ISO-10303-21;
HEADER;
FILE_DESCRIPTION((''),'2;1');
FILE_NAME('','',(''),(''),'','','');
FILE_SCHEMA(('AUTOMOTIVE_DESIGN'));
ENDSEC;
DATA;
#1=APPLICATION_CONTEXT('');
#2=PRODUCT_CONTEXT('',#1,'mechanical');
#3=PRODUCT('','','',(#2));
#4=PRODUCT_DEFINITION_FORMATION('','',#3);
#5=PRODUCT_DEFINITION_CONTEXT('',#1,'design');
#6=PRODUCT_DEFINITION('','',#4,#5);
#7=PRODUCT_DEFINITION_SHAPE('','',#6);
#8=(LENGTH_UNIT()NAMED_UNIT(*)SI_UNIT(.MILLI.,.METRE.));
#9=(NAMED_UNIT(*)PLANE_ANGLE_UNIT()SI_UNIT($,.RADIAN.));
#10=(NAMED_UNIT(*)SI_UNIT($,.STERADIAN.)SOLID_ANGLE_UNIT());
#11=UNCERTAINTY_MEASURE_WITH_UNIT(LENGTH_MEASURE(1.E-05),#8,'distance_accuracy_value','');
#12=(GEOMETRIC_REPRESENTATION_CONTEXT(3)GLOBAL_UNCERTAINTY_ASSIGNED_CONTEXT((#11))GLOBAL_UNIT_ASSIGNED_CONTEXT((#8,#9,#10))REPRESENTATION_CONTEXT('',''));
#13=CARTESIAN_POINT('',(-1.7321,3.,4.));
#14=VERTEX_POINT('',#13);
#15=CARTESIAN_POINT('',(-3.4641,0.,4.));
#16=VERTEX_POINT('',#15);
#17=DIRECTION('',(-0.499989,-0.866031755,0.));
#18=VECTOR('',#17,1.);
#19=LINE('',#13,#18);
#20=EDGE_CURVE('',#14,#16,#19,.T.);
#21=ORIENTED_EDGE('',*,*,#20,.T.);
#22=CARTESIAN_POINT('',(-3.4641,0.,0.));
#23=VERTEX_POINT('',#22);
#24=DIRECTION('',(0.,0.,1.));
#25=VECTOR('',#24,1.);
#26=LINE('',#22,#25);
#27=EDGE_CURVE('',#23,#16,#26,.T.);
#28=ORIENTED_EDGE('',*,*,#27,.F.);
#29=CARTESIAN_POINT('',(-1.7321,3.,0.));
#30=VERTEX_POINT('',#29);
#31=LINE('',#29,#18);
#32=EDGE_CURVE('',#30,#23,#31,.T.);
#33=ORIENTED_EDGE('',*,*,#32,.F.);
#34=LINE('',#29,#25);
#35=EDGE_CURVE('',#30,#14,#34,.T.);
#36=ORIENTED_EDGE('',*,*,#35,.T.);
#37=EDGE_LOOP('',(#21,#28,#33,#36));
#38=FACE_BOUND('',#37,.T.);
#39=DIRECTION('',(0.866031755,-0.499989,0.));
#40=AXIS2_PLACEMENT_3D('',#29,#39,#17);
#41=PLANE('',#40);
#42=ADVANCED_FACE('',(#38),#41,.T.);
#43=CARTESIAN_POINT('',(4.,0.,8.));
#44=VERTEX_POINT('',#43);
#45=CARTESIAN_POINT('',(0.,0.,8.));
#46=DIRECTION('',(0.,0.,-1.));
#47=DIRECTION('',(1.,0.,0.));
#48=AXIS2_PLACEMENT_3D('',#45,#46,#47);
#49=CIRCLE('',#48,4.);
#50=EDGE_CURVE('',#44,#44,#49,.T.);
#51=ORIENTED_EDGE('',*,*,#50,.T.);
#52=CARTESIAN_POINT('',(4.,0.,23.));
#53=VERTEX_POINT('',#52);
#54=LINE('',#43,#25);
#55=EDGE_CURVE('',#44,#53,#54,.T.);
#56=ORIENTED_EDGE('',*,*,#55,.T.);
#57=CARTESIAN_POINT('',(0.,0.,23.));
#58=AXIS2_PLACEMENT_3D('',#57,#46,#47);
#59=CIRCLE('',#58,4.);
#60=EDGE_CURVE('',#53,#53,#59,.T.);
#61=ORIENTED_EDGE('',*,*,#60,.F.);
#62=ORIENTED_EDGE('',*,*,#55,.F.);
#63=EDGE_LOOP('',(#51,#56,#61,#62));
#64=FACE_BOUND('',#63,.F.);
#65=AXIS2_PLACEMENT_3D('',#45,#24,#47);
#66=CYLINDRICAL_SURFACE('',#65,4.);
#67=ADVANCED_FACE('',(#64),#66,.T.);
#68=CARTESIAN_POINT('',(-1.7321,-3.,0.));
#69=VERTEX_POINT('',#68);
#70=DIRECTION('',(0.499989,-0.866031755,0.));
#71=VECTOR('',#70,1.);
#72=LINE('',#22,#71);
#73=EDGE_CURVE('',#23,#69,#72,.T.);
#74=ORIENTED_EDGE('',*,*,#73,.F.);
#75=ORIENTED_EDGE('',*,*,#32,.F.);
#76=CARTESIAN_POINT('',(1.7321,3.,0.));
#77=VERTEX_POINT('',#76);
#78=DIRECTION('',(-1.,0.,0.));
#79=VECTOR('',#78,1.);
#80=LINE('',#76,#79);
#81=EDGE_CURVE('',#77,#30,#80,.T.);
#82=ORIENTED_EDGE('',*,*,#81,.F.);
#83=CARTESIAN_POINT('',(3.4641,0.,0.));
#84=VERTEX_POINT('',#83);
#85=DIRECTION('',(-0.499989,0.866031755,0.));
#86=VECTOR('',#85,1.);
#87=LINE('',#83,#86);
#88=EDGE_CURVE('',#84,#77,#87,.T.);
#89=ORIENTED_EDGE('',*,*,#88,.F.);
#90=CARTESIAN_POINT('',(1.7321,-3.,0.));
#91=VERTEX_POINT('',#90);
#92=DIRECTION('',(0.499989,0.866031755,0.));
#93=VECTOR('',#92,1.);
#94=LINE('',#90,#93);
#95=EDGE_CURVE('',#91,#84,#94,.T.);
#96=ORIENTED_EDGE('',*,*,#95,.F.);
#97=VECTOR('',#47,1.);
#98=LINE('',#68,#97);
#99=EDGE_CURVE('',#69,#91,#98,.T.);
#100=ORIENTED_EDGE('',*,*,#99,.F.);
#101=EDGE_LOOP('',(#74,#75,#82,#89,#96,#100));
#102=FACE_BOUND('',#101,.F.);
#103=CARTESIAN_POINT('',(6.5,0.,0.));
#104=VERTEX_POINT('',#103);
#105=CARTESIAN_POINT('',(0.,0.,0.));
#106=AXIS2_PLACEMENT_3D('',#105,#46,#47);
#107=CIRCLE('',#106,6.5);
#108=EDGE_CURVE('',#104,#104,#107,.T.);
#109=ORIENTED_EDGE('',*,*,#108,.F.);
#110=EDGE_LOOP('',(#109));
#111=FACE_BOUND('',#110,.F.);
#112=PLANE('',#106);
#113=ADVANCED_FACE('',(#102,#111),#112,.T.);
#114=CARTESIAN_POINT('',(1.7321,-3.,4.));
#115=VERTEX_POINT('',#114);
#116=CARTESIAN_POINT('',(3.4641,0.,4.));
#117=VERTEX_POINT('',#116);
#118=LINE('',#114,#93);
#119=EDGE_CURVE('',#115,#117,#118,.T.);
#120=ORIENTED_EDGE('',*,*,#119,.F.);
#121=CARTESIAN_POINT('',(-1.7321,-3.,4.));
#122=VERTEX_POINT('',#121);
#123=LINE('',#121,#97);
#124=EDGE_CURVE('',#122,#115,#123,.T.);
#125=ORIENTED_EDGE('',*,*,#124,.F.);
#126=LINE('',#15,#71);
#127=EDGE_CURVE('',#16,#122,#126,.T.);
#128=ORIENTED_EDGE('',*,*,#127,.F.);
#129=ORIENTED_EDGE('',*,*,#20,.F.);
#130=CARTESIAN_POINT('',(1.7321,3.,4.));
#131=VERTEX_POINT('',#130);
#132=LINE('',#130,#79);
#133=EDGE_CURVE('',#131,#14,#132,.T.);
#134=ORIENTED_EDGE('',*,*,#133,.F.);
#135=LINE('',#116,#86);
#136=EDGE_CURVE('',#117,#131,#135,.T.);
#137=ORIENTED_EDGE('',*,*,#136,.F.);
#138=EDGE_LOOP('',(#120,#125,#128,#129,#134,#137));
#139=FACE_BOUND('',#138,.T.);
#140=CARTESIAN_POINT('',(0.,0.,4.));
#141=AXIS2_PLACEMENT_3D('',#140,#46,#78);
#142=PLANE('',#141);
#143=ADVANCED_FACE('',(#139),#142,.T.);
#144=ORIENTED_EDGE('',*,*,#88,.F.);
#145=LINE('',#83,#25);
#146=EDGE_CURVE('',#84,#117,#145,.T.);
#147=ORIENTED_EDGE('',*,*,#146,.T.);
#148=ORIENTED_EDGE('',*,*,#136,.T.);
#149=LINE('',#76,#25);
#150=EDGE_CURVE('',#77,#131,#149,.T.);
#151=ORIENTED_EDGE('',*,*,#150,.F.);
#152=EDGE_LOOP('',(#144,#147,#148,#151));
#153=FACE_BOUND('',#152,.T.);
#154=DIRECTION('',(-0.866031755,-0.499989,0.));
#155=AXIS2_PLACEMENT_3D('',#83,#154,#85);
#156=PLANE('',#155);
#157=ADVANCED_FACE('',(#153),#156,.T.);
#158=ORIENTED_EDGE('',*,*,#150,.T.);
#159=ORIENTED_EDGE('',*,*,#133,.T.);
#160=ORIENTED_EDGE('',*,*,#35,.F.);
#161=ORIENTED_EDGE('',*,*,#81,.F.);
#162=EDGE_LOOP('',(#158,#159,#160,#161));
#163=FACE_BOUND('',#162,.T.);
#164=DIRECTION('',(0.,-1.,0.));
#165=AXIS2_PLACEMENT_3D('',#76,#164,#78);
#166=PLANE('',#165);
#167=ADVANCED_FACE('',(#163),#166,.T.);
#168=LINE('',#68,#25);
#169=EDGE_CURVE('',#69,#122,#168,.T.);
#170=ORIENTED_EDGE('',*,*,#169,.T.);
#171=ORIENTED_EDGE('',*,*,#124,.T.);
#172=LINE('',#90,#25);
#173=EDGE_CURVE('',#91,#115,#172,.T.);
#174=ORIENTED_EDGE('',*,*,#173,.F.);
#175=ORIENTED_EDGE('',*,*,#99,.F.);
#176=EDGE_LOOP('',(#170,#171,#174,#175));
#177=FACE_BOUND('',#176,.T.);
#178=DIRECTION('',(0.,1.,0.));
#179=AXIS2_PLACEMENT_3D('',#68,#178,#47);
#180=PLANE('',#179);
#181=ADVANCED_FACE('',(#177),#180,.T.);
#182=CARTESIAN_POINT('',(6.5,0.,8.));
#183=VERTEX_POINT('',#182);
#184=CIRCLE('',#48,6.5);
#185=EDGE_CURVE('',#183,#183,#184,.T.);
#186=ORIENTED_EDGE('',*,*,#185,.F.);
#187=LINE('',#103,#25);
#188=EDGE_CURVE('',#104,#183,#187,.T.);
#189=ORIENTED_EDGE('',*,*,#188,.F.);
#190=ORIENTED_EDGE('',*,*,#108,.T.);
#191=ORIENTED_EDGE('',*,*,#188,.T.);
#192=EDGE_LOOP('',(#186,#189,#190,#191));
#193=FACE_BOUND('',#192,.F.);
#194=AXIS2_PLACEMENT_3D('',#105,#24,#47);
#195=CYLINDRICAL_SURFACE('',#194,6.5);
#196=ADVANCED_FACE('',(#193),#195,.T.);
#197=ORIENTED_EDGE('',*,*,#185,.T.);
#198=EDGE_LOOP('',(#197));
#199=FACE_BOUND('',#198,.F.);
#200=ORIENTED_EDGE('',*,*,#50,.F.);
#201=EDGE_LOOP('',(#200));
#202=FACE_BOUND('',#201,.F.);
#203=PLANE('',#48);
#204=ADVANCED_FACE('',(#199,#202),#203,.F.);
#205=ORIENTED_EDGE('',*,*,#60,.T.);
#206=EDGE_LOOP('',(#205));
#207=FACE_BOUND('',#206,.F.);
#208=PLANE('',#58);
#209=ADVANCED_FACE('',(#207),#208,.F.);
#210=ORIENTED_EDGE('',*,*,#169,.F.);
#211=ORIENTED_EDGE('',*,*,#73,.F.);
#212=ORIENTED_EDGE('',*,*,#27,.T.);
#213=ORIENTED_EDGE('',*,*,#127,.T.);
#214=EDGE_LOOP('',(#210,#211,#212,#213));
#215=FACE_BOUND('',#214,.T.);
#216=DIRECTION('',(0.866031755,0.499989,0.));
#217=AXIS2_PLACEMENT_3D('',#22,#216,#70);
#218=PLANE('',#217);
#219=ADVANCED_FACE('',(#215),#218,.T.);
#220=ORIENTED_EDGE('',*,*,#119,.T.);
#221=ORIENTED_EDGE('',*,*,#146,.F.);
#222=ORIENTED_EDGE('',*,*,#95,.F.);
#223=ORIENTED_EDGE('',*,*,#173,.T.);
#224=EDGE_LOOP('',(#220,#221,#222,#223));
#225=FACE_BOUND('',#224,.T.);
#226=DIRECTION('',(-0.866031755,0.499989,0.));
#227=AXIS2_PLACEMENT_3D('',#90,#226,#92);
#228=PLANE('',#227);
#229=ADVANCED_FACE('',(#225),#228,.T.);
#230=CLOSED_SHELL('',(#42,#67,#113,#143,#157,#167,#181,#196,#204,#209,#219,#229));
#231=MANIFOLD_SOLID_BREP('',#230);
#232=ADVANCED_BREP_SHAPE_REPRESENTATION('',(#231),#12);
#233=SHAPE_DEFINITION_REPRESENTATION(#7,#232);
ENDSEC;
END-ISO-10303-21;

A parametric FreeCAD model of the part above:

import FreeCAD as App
import Part
import Sketcher
Q = App.Units.Quantity


def add_polygon(sketch, points):
    """Adds a closed chain of lines whose ends are joined by coincident constraints."""
    first, n = sketch.GeometryCount, len(points)
    for a, b in zip(points, points[1:] + points[:1]):
        sketch.addGeometry(Part.LineSegment(App.Vector(*a, 0), App.Vector(*b, 0)), False)
    for i in range(n):
        sketch.addConstraint(Sketcher.Constraint("Coincident", first + i, 2, first + (i + 1) % n, 1))

doc = App.newDocument("Part")
body = doc.addObject("PartDesign::Body", "Body")

sketch1 = body.newObject("Sketcher::SketchObject", "Sketch")
sketch1.AttachmentSupport = (doc.getObject("XZ_Plane"), [""])
sketch1.MapMode = "FlatFace"
add_polygon(sketch1, [(6.5, 0), (0, 0), (0, 23), (4, 23), (4, 8), (6.5, 8)])
sketch1.addConstraint([
    Sketcher.Constraint("Horizontal", 0),
    Sketcher.Constraint("Vertical", 1),
    Sketcher.Constraint("Horizontal", 2),
    Sketcher.Constraint("Vertical", 3),
    Sketcher.Constraint("Horizontal", 4),
    Sketcher.Constraint("Vertical", 5),
    Sketcher.Constraint("Coincident", 0, 2, -1, 1),
    Sketcher.Constraint("DistanceY", 3, 2, 3, 1, 15.0),
    Sketcher.Constraint("DistanceY", 5, 2, 5, 1, 8.0),
    Sketcher.Constraint("DistanceX", 2, 1, 2, 2, 4.0),
    Sketcher.Constraint("DistanceX", 0, 2, 0, 1, 6.5),
])
revolution = body.newObject("PartDesign::Revolution", "Revolution")
revolution.Profile = sketch1
revolution.ReferenceAxis = (sketch1, ["V_Axis"])
revolution.Angle = 360

sketch2 = body.newObject("Sketcher::SketchObject", "Sketch001")
sketch2.AttachmentSupport = (doc.getObject("XY_Plane"), [""])
sketch2.MapMode = "FlatFace"
add_polygon(sketch2, [(-3.5, 0), (-1.7, 3), (1.7, 3), (3.5, 0), (1.7, -3), (-1.7, -3)])
sketch2.addConstraint([
    Sketcher.Constraint("Horizontal", 1),
    Sketcher.Constraint("Horizontal", 4),
    Sketcher.Constraint("Symmetric", 0, 2, 3, 2, -1, 1),
    Sketcher.Constraint("Symmetric", 2, 2, 5, 2, -1, 1),
    Sketcher.Constraint("PointOnObject", 2, 2, -1),
    Sketcher.Constraint("Parallel", 2, 5),
    Sketcher.Constraint("Vertical", 1, 2, 3, 2),
    Sketcher.Constraint("DistanceY", 3, 2, 1, 2, 6.0),
    Sketcher.Constraint("Angle", 0, Q("60.0007 deg")),
    Sketcher.Constraint("DistanceX", 1, 1, 1, 2, 3.4642),
])
pocket1 = body.newObject("PartDesign::Pocket", "Pocket")
pocket1.Profile = sketch2
pocket1.Length = 4
pocket1.Reversed = True

doc.recompute()
